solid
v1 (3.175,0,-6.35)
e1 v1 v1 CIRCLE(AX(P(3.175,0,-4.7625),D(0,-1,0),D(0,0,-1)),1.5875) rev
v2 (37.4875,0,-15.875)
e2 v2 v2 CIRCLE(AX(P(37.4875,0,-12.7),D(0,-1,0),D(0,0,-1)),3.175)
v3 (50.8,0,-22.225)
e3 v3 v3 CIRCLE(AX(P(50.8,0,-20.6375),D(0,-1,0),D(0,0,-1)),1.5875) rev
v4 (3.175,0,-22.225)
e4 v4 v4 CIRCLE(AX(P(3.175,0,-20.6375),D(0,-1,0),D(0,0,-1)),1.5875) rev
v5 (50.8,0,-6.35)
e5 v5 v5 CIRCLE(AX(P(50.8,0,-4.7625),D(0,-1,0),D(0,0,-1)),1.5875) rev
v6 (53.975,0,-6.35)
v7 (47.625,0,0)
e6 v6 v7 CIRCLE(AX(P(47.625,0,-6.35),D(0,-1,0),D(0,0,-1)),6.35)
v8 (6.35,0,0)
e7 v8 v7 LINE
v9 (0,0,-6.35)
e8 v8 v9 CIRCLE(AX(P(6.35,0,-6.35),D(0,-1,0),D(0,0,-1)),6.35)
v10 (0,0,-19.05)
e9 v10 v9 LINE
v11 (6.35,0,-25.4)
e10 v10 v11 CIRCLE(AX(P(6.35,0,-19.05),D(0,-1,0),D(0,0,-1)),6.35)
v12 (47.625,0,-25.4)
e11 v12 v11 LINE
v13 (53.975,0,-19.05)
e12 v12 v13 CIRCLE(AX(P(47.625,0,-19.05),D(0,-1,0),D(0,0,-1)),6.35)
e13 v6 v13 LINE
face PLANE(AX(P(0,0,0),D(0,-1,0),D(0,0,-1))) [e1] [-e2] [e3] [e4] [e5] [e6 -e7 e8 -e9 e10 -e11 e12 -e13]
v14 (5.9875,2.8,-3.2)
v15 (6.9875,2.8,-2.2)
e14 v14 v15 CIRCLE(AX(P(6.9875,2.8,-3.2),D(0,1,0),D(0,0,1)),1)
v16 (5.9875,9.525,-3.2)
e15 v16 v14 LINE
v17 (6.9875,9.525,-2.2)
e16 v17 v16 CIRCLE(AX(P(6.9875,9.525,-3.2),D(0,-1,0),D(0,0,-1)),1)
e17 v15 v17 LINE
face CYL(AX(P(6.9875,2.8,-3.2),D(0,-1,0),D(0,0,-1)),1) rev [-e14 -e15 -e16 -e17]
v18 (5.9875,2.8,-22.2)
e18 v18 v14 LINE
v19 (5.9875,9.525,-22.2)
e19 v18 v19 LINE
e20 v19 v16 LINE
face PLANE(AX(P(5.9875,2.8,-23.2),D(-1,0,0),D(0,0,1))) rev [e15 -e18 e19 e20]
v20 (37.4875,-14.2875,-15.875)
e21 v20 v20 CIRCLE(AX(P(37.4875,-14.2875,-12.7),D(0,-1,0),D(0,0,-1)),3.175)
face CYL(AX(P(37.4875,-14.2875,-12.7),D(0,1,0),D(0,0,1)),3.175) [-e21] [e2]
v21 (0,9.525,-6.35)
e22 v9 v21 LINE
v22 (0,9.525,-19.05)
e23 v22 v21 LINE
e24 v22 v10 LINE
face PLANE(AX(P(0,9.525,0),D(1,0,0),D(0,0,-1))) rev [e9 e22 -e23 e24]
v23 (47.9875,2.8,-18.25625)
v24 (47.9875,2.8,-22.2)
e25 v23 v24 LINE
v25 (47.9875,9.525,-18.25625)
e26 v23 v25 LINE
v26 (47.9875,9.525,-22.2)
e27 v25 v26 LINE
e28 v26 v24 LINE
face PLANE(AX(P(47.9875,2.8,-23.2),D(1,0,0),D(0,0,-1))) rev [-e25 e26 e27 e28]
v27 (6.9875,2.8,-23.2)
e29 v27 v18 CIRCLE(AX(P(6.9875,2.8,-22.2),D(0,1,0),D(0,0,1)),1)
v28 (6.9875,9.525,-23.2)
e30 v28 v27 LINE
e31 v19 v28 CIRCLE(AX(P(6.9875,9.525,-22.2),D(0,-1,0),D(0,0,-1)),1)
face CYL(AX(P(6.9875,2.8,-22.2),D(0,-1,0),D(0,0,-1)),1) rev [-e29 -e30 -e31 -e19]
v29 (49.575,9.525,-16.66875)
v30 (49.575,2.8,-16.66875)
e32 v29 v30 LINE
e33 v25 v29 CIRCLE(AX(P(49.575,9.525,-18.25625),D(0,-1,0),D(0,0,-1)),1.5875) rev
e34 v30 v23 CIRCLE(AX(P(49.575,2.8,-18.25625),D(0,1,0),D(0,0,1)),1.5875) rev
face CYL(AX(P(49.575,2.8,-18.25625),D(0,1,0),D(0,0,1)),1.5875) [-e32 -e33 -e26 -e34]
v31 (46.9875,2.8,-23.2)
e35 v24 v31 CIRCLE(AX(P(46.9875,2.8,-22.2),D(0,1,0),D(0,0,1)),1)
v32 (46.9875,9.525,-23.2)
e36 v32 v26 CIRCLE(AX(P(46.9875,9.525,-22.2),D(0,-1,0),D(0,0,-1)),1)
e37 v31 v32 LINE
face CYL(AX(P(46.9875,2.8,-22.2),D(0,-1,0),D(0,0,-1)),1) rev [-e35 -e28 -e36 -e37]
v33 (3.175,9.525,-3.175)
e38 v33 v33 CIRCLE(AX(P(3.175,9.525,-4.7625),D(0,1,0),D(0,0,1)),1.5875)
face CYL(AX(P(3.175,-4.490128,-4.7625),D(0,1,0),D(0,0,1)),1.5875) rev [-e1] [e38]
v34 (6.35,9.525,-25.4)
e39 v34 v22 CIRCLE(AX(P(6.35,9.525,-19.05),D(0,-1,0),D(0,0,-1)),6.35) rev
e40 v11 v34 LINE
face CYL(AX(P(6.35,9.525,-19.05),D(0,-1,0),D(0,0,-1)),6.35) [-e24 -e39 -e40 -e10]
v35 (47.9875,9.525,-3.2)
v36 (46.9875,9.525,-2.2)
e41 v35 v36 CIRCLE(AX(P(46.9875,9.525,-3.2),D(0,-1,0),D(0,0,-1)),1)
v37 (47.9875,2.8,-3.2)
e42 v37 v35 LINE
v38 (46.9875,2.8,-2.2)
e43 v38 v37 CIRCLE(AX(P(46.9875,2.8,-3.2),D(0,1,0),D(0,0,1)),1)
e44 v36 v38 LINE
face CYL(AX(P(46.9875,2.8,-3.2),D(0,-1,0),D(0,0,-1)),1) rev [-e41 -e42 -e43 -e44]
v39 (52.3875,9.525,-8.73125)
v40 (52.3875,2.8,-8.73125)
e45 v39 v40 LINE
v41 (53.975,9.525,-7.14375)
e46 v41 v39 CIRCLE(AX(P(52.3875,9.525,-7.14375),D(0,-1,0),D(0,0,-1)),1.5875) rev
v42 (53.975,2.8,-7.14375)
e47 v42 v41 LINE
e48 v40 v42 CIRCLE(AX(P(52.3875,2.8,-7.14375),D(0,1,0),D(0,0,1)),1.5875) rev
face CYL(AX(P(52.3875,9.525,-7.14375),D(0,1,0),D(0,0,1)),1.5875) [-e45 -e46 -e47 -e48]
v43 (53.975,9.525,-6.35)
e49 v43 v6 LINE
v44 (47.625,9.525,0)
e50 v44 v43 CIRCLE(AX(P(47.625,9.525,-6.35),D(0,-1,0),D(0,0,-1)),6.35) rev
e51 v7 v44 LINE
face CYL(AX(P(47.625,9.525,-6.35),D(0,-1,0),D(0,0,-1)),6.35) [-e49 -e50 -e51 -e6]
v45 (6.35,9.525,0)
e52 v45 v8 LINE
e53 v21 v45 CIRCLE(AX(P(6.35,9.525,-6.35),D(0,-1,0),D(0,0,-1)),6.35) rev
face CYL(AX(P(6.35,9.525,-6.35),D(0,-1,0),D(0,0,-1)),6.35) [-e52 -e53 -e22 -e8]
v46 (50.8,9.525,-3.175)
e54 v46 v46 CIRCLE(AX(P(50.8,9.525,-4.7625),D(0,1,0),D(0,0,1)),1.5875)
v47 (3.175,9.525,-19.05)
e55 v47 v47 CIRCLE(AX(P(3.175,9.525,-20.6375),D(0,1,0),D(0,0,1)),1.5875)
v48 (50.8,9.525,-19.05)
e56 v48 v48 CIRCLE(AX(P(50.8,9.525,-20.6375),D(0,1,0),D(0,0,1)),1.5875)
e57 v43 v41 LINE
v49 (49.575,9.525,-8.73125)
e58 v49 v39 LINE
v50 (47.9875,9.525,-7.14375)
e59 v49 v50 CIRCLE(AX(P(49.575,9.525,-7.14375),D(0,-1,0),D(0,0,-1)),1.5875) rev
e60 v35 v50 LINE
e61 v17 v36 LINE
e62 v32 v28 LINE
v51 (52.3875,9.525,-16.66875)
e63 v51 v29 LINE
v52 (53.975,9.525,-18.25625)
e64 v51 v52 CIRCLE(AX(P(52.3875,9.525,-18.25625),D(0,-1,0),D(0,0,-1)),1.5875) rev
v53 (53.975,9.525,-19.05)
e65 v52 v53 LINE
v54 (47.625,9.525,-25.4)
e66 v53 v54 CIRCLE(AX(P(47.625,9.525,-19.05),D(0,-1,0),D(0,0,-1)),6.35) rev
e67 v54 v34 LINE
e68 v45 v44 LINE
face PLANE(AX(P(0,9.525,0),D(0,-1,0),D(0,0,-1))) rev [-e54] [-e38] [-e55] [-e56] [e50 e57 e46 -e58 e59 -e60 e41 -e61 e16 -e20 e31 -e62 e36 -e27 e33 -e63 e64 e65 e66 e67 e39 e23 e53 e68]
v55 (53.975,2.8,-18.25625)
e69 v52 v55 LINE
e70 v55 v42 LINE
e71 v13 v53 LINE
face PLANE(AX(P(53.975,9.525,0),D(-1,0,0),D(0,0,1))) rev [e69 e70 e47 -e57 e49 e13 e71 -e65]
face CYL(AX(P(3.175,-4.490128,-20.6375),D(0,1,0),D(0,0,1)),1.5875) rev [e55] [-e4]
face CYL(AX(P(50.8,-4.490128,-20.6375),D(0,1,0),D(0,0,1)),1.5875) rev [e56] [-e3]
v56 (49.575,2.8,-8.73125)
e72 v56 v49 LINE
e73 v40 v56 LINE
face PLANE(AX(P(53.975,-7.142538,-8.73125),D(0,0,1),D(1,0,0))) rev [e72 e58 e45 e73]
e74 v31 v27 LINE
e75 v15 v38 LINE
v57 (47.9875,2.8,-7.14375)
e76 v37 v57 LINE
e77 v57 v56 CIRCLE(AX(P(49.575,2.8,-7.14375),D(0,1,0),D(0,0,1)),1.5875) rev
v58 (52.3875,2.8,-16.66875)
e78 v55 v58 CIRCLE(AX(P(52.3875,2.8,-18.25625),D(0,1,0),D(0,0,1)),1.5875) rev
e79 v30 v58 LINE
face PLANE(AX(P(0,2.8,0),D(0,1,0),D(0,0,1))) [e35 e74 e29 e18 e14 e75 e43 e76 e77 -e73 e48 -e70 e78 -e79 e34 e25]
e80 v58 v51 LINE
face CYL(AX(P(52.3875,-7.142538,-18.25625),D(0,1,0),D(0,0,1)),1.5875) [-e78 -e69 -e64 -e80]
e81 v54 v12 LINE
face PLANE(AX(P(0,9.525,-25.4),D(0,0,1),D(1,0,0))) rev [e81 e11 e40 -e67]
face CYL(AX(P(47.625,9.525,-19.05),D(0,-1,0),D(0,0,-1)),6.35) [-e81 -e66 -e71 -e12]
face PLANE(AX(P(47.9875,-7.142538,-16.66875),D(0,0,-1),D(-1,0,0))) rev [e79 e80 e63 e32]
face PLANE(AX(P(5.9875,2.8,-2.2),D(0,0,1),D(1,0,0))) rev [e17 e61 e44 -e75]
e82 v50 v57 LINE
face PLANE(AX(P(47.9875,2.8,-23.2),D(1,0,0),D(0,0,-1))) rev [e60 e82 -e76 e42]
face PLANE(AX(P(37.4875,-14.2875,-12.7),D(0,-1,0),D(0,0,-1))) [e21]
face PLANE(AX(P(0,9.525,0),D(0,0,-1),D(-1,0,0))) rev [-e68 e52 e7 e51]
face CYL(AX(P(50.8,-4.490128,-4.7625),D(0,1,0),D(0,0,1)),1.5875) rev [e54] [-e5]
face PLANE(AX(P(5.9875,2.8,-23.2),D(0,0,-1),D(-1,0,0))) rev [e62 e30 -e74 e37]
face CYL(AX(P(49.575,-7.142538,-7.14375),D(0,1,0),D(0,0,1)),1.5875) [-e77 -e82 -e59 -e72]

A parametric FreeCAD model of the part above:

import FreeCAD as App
import Part
import Sketcher

V = App.Vector
Q = App.Units.Quantity


def edges_at(feature, points):
    """Names of the edges that pass closest to the given points."""
    edges = feature.Shape.Edges
    near = lambda p: min(range(len(edges)), key=lambda i: edges[i].distToShape(Part.Vertex(*p))[0])
    return sorted({f"Edge{near(p) + 1}" for p in points})

doc = App.newDocument("Part")
params = doc.addObject("Spreadsheet::Sheet", "Params")
for row, (alias, value) in enumerate([
    ("sketch1_height", "1 in"),
    ("sketch1_width", "2.125 in"),
    ("pad1_length", "0.375 in"),
    ("pocket1_length", "6.725 mm"),
    ("fillet_radius", "1 mm"),
    ("sketch3_diameter", "0.25 in"),
    ("pad2_length", "0.5625 in"),
    ("sketch4_diameter", "0.125 in"),
    ("pocket2_length", "0.375 in"),
    ("fillet2_radius", "0.25 in"),
    ("sketch5_height", "0.3125 in"),
    ("pocket3_length", "6.725 mm"),
    ("fillet3_radius", "0.0625 in"),
], start=1):
    params.set(f"A{row}", alias)
    params.set(f"B{row}", "=" + value)
    params.setAlias(f"B{row}", alias)

body = doc.addObject("PartDesign::Body", "Body")

# Sketch on XZ plane
sketch1 = doc.addObject("Sketcher::SketchObject", "Sketch")
body.addObject(sketch1)
sketch1.AttachmentSupport = (doc.XZ_Plane, [""])
sketch1.MapMode = "FlatFace"
sketch1.addGeometry([
    Part.LineSegment(V(0, -25, 0), V(0, 0, 0)),
    Part.LineSegment(V(0, 0, 0), V(54, 0, 0)),
    Part.LineSegment(V(54, 0, 0), V(54, -25, 0)),
    Part.LineSegment(V(54, -25, 0), V(0, -25, 0)),
], False)
sketch1.addConstraint([
    Sketcher.Constraint("Coincident", 0, 2, 1, 1),
    Sketcher.Constraint("Coincident", 1, 2, 2, 1),
    Sketcher.Constraint("Coincident", 2, 2, 3, 1),
    Sketcher.Constraint("Coincident", 3, 2, 0, 1),
    Sketcher.Constraint("Vertical", 0),
    Sketcher.Constraint("Horizontal", 1),
    Sketcher.Constraint("Vertical", 2),
    Sketcher.Constraint("Horizontal", 3),
    Sketcher.Constraint("Coincident", 0, 2, -1, 1),
    Sketcher.Constraint("DistanceY", 0, 1, 0, 2, Q("1 in")),
    Sketcher.Constraint("DistanceX", 1, 1, 1, 2, Q("2.125 in")),
])
sketch1.setExpression("Constraints[9]", "Params.sketch1_height")
sketch1.setExpression("Constraints[10]", "Params.sketch1_width")
pad1 = doc.addObject("PartDesign::Pad", "Pad")
body.addObject(pad1)
pad1.Profile = sketch1
pad1.setExpression("Length", "Params.pad1_length")
pad1.Reversed = True

# Sketch on XZ plane
sketch2 = doc.addObject("Sketcher::SketchObject", "Sketch001")
body.addObject(sketch2)
sketch2.AttachmentSupport = (doc.XZ_Plane, [""])
sketch2.MapMode = "FlatFace"
sketch2.AttachmentOffset = App.Placement(V(0, 0, -0.375 * 25.4), App.Rotation())
sketch2.addGeometry([
    Part.LineSegment(V(6, -23, 0), V(6, -2, 0)),
    Part.LineSegment(V(6, -2, 0), V(48, -2, 0)),
    Part.LineSegment(V(48, -2, 0), V(48, -23, 0)),
    Part.LineSegment(V(48, -23, 0), V(6, -23, 0)),
], False)
sketch2.addConstraint([
    Sketcher.Constraint("Coincident", 0, 2, 1, 1),
    Sketcher.Constraint("Coincident", 1, 2, 2, 1),
    Sketcher.Constraint("Coincident", 2, 2, 3, 1),
    Sketcher.Constraint("Coincident", 3, 2, 0, 1),
    Sketcher.Constraint("Vertical", 0),
    Sketcher.Constraint("Horizontal", 1),
    Sketcher.Constraint("Vertical", 2),
    Sketcher.Constraint("Horizontal", 3),
    Sketcher.Constraint("DistanceX", 1, 1, 1, 2, 42.0),
    Sketcher.Constraint("DistanceY", 0, 1, 0, 2, 21.0),
    Sketcher.Constraint("DistanceX", -1, 1, 0, 2, 5.9875),
    Sketcher.Constraint("DistanceY", 0, 2, -1, 1, 2.2),
])
pocket1 = doc.addObject("PartDesign::Pocket", "Pocket")
body.addObject(pocket1)
pocket1.Profile = sketch2
pocket1.setExpression("Length", "Params.pocket1_length")
pocket1.Reversed = True
doc.recompute()

fillet = doc.addObject("PartDesign::Fillet", "Fillet")
body.addObject(fillet)
fillet.Base = (pocket1, edges_at(pocket1, [
    (5.987, 6.162, -2.2),
    (5.987, 6.162, -23.2),
    (47.987, 6.162, -23.2),
    (47.987, 6.162, -2.2),
]))
fillet.setExpression("Radius", "Params.fillet_radius")

# Sketch on XZ plane
sketch3 = doc.addObject("Sketcher::SketchObject", "Sketch002")
body.addObject(sketch3)
sketch3.AttachmentSupport = (doc.XZ_Plane, [""])
sketch3.MapMode = "FlatFace"
sketch3.addGeometry(Part.Circle(V(37.5, -12.7, 0), V(0, 0, 1), 3.2), False)
sketch3.addConstraint([
    Sketcher.Constraint("Diameter", 0, Q("0.25 in")),
    Sketcher.Constraint("DistanceY", 0, 3, -1, 1, Q("0.5 in")),
    Sketcher.Constraint("DistanceX", -1, 1, 0, 3, 37.4875),
])
sketch3.setExpression("Constraints[0]", "Params.sketch3_diameter")
pad2 = doc.addObject("PartDesign::Pad", "Pad001")
body.addObject(pad2)
pad2.Profile = sketch3
pad2.setExpression("Length", "Params.pad2_length")

# Sketch on XZ plane
sketch4 = doc.addObject("Sketcher::SketchObject", "Sketch003")
body.addObject(sketch4)
sketch4.AttachmentSupport = (doc.XZ_Plane, [""])
sketch4.MapMode = "FlatFace"
sketch4.AttachmentOffset = App.Placement(V(0, 0, -0.375 * 25.4), App.Rotation())
sketch4.addGeometry([
    Part.Circle(V(3.2, -20.6, 0), V(0, 0, 1), 1.6),
    Part.Circle(V(3.2, -4.8, 0), V(0, 0, 1), 1.6),
    Part.Circle(V(50.8, -20.6, 0), V(0, 0, 1), 1.6),
    Part.Circle(V(50.8, -4.8, 0), V(0, 0, 1), 1.6),
], False)
sketch4.addConstraint([
    Sketcher.Constraint("Equal", 0, 1),
    Sketcher.Constraint("Equal", 1, 2),
    Sketcher.Constraint("Equal", 2, 3),
    Sketcher.Constraint("Horizontal", 0, 3, 2, 3),
    Sketcher.Constraint("Horizontal", 1, 3, 3, 3),
    Sketcher.Constraint("Vertical", 0, 3, 1, 3),
    Sketcher.Constraint("Vertical", 2, 3, 3, 3),
    Sketcher.Constraint("Diameter", 0, Q("0.125 in")),
    Sketcher.Constraint("DistanceX", -1, 1, 2, 3, Q("2 in")),
    Sketcher.Constraint("DistanceX", -1, 1, 0, 3, Q("0.125 in")),
    Sketcher.Constraint("DistanceY", 0, 3, -1, 1, Q("0.8125 in")),
    Sketcher.Constraint("DistanceY", 1, 3, -1, 1, Q("0.1875 in")),
])
sketch4.setExpression("Constraints[7]", "Params.sketch4_diameter")
pocket2 = doc.addObject("PartDesign::Pocket", "Pocket001")
body.addObject(pocket2)
pocket2.Profile = sketch4
pocket2.setExpression("Length", "Params.pocket2_length")
pocket2.Reversed = True
doc.recompute()

fillet2 = doc.addObject("PartDesign::Fillet", "Fillet001")
body.addObject(fillet2)
fillet2.Base = (pocket2, edges_at(pocket2, [
    (0, 4.763, -25.4),
    (53.975, 4.763, -25.4),
    (53.975, 4.763, 0),
    (0, 4.763, 0),
]))
fillet2.setExpression("Radius", "Params.fillet2_radius")

# Sketch on XZ plane
sketch5 = doc.addObject("Sketcher::SketchObject", "Sketch004")
body.addObject(sketch5)
sketch5.AttachmentSupport = (doc.XZ_Plane, [""])
sketch5.MapMode = "FlatFace"
sketch5.AttachmentOffset = App.Placement(V(0, 0, -0.375 * 25.4), App.Rotation())
sketch5.addGeometry([
    Part.LineSegment(V(48, -17, 0), V(48, -9, 0)),
    Part.LineSegment(V(48, -9, 0), V(54, -9, 0)),
    Part.LineSegment(V(54, -9, 0), V(54, -17, 0)),
    Part.LineSegment(V(54, -17, 0), V(48, -17, 0)),
], False)
sketch5.addConstraint([
    Sketcher.Constraint("Coincident", 0, 2, 1, 1),
    Sketcher.Constraint("Coincident", 1, 2, 2, 1),
    Sketcher.Constraint("Coincident", 2, 2, 3, 1),
    Sketcher.Constraint("Coincident", 3, 2, 0, 1),
    Sketcher.Constraint("Vertical", 0),
    Sketcher.Constraint("Horizontal", 1),
    Sketcher.Constraint("Vertical", 2),
    Sketcher.Constraint("Horizontal", 3),
    Sketcher.Constraint("DistanceY", 0, 1, 0, 2, Q("0.3125 in")),
    Sketcher.Constraint("DistanceY", 0, 2, -1, 1, Q("0.34375 in")),
    Sketcher.Constraint("DistanceX", -1, 1, 1, 2, Q("2.125 in")),
    Sketcher.Constraint("DistanceX", 1, 1, 1, 2, 5.9875),
])
sketch5.setExpression("Constraints[8]", "Params.sketch5_height")
pocket3 = doc.addObject("PartDesign::Pocket", "Pocket002")
body.addObject(pocket3)
pocket3.Profile = sketch5
pocket3.setExpression("Length", "Params.pocket3_length")
pocket3.Reversed = True
doc.recompute()

fillet3 = doc.addObject("PartDesign::Fillet", "Fillet002")
body.addObject(fillet3)
fillet3.Base = (pocket3, edges_at(pocket3, [
    (53.975, 6.162, -8.731),
    (47.987, 6.162, -8.731),
    (47.987, 6.162, -16.669),
    (53.975, 6.162, -16.669),
]))
fillet3.setExpression("Radius", "Params.fillet3_radius")

doc.recompute()
